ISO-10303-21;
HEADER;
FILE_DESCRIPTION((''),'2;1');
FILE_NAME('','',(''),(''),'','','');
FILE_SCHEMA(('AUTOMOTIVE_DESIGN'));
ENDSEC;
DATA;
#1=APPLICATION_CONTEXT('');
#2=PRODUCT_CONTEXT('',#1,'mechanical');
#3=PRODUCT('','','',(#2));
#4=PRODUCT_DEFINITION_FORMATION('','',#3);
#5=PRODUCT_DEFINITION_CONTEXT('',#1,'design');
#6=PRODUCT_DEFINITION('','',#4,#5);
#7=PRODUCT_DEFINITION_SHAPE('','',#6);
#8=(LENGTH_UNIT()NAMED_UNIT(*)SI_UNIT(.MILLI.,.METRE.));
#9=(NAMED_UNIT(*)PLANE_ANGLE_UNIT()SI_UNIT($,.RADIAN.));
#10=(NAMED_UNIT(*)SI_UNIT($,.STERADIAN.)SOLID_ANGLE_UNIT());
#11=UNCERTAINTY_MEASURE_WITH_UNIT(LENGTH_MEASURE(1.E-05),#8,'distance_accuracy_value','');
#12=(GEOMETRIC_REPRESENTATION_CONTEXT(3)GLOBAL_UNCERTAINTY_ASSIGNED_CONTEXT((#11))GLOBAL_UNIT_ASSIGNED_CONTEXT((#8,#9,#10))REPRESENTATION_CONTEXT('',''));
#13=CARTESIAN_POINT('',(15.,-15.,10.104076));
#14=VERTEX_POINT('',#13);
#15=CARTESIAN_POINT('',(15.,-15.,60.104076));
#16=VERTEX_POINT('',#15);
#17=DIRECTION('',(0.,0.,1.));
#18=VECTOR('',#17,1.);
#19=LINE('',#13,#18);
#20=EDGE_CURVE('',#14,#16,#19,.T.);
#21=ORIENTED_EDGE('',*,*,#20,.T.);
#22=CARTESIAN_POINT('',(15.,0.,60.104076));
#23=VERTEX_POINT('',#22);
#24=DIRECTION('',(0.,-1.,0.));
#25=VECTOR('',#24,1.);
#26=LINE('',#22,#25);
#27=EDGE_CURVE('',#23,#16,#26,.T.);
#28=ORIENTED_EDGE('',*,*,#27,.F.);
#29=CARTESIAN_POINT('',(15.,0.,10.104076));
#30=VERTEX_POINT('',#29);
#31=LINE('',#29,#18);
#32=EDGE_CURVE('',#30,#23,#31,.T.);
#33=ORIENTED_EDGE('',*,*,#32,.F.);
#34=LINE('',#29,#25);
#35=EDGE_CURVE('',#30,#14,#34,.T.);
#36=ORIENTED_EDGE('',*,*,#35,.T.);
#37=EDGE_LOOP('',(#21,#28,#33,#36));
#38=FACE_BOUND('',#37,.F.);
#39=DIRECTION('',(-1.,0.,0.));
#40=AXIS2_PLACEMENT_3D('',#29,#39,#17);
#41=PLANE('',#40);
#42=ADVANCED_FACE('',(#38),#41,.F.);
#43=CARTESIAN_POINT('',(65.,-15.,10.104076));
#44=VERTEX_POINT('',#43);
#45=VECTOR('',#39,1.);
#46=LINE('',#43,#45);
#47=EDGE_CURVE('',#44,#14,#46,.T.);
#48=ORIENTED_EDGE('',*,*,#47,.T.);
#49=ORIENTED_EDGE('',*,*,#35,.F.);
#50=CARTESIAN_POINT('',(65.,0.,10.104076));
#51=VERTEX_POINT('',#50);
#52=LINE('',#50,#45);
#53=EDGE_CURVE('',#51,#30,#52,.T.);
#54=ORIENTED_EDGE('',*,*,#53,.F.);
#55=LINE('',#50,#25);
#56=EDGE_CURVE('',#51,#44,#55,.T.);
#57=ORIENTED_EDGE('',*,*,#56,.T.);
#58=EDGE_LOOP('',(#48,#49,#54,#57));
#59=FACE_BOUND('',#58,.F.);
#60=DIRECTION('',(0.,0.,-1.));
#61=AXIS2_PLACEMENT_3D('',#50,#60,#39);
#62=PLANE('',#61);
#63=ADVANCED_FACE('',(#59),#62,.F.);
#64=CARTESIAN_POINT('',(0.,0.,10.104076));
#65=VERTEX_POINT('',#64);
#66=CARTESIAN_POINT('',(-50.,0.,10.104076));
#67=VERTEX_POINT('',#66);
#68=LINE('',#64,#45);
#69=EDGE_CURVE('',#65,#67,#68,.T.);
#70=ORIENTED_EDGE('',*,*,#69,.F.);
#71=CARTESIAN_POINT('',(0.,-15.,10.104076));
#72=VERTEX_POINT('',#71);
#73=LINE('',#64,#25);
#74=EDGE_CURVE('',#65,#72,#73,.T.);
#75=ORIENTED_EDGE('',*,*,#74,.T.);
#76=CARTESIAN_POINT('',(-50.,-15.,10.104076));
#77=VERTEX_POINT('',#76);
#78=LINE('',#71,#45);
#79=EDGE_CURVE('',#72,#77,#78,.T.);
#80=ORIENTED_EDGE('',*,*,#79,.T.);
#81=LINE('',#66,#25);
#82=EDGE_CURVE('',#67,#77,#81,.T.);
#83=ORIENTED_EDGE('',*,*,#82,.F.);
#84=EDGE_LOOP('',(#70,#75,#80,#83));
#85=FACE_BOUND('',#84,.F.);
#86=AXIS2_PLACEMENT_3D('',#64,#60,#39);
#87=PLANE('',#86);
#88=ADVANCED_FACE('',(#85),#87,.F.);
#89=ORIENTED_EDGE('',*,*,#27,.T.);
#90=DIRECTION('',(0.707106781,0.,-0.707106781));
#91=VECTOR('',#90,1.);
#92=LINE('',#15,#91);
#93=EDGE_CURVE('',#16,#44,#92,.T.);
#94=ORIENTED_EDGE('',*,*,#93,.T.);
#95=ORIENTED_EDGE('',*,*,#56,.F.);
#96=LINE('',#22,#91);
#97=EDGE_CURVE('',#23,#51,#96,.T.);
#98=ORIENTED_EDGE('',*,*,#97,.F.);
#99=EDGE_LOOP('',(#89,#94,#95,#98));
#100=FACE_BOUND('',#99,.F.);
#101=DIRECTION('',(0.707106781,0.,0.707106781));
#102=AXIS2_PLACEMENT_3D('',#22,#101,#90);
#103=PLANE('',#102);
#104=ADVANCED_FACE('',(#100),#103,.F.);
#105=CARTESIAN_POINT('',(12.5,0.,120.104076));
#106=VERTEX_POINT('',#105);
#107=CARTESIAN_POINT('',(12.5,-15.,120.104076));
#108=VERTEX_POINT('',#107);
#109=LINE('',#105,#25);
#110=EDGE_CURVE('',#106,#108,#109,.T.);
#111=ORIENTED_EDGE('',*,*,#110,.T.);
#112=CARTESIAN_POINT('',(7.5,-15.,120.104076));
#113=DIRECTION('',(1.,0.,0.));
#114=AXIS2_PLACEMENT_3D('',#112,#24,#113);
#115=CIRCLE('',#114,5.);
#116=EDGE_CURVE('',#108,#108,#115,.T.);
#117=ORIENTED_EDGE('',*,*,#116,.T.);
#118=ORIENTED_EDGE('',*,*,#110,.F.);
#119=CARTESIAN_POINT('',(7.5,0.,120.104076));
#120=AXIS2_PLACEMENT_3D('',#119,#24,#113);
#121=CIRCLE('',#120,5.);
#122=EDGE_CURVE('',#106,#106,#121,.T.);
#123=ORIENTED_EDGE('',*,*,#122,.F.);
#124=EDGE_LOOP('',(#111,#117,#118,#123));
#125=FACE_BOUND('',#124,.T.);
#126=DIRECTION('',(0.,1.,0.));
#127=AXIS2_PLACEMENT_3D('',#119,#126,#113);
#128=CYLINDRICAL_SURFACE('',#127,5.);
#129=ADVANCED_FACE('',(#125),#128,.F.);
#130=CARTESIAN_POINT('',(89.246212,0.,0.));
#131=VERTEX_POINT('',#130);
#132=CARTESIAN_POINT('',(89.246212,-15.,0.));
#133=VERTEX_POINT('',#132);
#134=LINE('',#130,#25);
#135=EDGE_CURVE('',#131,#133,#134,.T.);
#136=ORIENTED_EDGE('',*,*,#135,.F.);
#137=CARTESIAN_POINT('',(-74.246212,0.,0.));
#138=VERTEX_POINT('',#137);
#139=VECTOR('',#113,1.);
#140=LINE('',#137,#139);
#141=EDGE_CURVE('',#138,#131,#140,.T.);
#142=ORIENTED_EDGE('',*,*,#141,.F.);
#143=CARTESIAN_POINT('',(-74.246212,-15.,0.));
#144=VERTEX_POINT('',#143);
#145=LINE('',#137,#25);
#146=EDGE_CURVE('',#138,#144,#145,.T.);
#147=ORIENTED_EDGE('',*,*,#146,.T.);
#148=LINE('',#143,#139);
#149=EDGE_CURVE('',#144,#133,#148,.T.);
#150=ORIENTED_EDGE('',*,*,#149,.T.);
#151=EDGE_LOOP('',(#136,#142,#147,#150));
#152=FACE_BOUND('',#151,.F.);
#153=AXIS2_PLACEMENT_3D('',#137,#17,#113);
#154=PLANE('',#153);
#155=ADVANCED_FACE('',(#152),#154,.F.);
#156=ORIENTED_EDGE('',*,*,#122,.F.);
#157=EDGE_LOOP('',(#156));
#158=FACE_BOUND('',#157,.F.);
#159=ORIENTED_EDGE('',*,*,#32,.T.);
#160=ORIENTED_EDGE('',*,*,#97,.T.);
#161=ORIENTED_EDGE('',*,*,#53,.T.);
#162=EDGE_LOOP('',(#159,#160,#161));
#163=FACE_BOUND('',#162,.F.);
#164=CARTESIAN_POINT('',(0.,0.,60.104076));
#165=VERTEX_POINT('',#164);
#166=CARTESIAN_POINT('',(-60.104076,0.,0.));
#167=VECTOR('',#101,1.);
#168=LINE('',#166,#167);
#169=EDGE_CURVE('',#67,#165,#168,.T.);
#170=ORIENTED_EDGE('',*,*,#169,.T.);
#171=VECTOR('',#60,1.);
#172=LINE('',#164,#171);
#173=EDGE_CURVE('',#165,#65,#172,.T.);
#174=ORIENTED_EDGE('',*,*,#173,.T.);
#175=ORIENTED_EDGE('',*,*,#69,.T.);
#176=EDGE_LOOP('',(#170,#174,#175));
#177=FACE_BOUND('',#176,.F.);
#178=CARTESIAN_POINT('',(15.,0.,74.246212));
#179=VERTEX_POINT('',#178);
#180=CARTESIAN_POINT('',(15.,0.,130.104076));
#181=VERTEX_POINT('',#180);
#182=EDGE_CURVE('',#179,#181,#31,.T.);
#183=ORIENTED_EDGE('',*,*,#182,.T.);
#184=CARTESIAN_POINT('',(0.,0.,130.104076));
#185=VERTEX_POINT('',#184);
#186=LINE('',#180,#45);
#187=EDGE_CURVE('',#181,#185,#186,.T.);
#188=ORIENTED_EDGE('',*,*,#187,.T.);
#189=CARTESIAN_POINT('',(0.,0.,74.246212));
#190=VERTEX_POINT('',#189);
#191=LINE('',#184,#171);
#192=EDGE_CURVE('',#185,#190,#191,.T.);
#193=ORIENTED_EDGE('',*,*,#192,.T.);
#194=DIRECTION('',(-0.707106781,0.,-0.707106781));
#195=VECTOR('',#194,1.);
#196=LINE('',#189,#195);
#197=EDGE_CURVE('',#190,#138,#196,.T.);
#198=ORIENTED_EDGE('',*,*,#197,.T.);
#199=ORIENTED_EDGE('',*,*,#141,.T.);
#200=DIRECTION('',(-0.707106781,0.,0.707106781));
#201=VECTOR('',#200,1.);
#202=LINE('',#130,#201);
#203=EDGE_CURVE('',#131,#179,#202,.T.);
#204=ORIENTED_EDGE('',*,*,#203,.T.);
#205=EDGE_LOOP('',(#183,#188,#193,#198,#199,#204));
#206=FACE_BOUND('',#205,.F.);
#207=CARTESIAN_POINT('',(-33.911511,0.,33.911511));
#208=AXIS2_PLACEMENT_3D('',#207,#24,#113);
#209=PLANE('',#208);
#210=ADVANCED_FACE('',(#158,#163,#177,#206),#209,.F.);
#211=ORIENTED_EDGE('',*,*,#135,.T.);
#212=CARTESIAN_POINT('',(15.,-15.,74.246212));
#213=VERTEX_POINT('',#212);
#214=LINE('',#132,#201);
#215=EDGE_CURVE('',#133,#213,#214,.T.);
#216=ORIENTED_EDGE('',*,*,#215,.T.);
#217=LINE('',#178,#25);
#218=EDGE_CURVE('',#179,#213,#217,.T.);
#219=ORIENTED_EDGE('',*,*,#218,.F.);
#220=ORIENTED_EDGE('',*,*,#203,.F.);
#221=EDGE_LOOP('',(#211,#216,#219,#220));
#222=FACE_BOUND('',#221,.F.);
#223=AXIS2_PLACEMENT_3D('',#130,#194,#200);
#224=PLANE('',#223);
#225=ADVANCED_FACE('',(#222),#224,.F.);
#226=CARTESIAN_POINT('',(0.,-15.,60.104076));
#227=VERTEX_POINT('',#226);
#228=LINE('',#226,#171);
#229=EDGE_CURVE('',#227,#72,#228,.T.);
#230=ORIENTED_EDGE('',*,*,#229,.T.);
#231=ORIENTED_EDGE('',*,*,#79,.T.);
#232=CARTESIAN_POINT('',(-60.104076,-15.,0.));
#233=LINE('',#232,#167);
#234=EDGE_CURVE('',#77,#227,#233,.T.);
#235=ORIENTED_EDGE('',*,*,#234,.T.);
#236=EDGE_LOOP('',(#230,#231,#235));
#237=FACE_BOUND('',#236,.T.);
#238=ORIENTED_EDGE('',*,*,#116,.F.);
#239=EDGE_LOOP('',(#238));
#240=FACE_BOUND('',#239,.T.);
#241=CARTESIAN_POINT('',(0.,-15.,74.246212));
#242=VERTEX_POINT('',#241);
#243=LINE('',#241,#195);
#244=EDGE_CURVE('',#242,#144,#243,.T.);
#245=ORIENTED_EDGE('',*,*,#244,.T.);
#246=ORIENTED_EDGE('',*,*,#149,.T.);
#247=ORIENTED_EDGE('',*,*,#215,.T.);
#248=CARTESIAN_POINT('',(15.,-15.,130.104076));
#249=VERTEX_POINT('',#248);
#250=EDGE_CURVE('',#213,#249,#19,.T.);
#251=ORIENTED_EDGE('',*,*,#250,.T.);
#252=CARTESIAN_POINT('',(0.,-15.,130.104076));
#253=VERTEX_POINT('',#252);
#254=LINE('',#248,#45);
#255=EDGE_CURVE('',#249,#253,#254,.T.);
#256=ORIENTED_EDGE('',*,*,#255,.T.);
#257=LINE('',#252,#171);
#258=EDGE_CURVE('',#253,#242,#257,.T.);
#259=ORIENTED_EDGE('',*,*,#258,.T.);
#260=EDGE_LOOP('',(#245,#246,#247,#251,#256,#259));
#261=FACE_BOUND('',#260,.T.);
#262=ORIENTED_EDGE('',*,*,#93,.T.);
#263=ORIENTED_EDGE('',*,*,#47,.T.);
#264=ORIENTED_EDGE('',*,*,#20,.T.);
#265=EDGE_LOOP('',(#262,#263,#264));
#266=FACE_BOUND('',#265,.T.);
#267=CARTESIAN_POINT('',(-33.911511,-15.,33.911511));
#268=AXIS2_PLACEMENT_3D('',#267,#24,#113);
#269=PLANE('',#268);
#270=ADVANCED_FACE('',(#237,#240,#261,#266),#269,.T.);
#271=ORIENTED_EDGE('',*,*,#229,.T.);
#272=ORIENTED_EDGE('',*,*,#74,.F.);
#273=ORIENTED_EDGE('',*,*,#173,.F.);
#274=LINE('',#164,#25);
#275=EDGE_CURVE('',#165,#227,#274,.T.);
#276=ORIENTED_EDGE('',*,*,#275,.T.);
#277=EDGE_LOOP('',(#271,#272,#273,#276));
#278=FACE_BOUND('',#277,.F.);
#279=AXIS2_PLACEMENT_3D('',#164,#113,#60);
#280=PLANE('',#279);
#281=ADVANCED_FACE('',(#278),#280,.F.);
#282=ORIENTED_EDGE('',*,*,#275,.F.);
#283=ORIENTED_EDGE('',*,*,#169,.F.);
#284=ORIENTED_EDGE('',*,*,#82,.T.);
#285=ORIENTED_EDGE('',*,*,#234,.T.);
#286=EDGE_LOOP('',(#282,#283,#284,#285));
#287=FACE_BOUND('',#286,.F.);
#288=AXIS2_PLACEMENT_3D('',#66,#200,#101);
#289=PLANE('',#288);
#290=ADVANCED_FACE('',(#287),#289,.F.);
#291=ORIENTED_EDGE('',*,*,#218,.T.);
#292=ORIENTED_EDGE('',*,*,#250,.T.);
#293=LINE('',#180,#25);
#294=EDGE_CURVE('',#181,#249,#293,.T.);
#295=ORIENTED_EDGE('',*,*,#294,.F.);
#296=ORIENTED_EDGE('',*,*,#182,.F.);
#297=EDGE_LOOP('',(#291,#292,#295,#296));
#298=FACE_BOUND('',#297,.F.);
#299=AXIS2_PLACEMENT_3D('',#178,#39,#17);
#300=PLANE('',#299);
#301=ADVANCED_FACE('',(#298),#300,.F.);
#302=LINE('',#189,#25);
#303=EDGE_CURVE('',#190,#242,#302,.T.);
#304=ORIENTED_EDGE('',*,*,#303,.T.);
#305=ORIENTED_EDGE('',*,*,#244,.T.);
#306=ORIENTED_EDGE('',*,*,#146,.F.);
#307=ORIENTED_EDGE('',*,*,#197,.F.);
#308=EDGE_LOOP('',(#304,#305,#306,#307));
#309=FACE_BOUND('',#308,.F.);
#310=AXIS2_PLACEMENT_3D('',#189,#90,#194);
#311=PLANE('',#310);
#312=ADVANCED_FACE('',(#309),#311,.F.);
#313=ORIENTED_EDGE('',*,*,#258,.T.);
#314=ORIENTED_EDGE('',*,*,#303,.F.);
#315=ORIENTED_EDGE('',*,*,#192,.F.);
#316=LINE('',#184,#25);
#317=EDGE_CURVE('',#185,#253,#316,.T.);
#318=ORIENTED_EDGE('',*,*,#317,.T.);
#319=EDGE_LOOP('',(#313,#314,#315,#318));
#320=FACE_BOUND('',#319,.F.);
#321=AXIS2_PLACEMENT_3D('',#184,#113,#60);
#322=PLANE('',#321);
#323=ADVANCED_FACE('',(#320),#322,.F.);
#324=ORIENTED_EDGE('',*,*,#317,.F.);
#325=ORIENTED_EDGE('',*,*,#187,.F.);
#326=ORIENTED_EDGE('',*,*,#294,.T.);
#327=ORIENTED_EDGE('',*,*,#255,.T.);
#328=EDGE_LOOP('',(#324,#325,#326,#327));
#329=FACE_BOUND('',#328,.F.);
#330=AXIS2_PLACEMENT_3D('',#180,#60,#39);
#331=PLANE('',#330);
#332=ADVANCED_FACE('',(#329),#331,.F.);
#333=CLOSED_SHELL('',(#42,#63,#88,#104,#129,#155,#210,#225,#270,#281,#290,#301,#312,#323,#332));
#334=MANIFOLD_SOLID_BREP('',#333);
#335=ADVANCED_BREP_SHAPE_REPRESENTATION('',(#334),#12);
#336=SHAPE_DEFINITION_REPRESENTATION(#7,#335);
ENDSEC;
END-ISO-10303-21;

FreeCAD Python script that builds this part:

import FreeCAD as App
import Part
import Sketcher
from FreeCAD import Vector
Q = App.Units.Quantity


def add_polygon(sketch, points):
    """Adds a closed chain of lines whose ends are joined by coincident constraints."""
    first, n = sketch.GeometryCount, len(points)
    for a, b in zip(points, points[1:] + points[:1]):
        sketch.addGeometry(Part.LineSegment(App.Vector(*a, 0), App.Vector(*b, 0)), False)
    for i in range(n):
        sketch.addConstraint(Sketcher.Constraint("Coincident", first + i, 2, first + (i + 1) % n, 1))

doc = App.newDocument("Part")
body = doc.addObject("PartDesign::Body", "Body")

sketch1 = body.newObject("Sketcher::SketchObject", "Sketch")
sketch1.AttachmentSupport = (doc.getObject("XZ_Plane"), [""])
sketch1.MapMode = "FlatFace"
add_polygon(sketch1, [(0, 74.246212), (-74.246212, 0), (89.246212, 0), (15, 74.246212), (15, 130.104076), (0, 130.104076)])
add_polygon(sketch1, [(65, 10.104076), (15, 10.104076), (15, 60.104076)])
add_polygon(sketch1, [(-50, 10.104076), (0, 60.104076), (0, 10.104076)])
sketch1.addGeometry(Part.Circle(Vector(7.5, 120.104076, 0), Vector(0, 0, 1), 5), False)
sketch1.addConstraint(Sketcher.Constraint("Horizontal", 1))
sketch1.addConstraint(Sketcher.Constraint("Vertical", 3))
sketch1.addConstraint(Sketcher.Constraint("Horizontal", 4))
sketch1.addConstraint(Sketcher.Constraint("Vertical", 5))
sketch1.addConstraint(Sketcher.Constraint("Horizontal", 6))
sketch1.addConstraint(Sketcher.Constraint("Vertical", 7))
sketch1.addConstraint(Sketcher.Constraint("Vertical", 10))
sketch1.addConstraint(Sketcher.Constraint("Horizontal", 11))
sketch1.addConstraint(Sketcher.Constraint("PointOnObject", 0, 2, -1))
sketch1.addConstraint(Sketcher.Constraint("PointOnObject", 4, 2, -2))
sketch1.addConstraint(Sketcher.Constraint("PointOnObject", 9, 2, -2))
sketch1.addConstraint(Sketcher.Constraint("Perpendicular", 0, 2))
sketch1.addConstraint(Sketcher.Constraint("Parallel", 2, 8))
sketch1.addConstraint(Sketcher.Constraint("Perpendicular", 8, 9))
sketch1.addConstraint(Sketcher.Constraint("Horizontal", 2, 2, 5, 2))
sketch1.addConstraint(Sketcher.Constraint("Horizontal", 7, 2, 9, 2))
sketch1.addConstraint(Sketcher.Constraint("Horizontal", 8, 2, 10, 2))
sketch1.addConstraint(Sketcher.Constraint("Vertical", 3, 2, 6, 2))
sketch1.addConstraint(Sketcher.Constraint("Equal", 6, 11))
sketch1.addConstraint(Sketcher.Constraint("Diameter", 12, Q("10 mm")))
sketch1.addConstraint(Sketcher.Constraint("DistanceX", 4, 2, 4, 1, Q("15 mm")))
sketch1.addConstraint(Sketcher.Constraint("DistanceX", 6, 2, 6, 1, Q("50 mm")))
sketch1.addConstraint(Sketcher.Constraint("Distance", 0, Q("105 mm")))
sketch1.addConstraint(Sketcher.Constraint("DistanceY", 12, 3, 3, 2, Q("10 mm")))
sketch1.addConstraint(Sketcher.Constraint("DistanceY", 6, 2, 12, 3, Q("110 mm")))
sketch1.addConstraint(Sketcher.Constraint("DistanceX", -1, 1, 12, 3, Q("7.5 mm")))
sketch1.addConstraint(Sketcher.Constraint("DistanceY", 3, 1, 3, 2, Q("55.857864 mm")))
pad1 = body.newObject("PartDesign::Pad", "Pad")
pad1.Profile = sketch1
pad1.Length = 15

doc.recompute()
